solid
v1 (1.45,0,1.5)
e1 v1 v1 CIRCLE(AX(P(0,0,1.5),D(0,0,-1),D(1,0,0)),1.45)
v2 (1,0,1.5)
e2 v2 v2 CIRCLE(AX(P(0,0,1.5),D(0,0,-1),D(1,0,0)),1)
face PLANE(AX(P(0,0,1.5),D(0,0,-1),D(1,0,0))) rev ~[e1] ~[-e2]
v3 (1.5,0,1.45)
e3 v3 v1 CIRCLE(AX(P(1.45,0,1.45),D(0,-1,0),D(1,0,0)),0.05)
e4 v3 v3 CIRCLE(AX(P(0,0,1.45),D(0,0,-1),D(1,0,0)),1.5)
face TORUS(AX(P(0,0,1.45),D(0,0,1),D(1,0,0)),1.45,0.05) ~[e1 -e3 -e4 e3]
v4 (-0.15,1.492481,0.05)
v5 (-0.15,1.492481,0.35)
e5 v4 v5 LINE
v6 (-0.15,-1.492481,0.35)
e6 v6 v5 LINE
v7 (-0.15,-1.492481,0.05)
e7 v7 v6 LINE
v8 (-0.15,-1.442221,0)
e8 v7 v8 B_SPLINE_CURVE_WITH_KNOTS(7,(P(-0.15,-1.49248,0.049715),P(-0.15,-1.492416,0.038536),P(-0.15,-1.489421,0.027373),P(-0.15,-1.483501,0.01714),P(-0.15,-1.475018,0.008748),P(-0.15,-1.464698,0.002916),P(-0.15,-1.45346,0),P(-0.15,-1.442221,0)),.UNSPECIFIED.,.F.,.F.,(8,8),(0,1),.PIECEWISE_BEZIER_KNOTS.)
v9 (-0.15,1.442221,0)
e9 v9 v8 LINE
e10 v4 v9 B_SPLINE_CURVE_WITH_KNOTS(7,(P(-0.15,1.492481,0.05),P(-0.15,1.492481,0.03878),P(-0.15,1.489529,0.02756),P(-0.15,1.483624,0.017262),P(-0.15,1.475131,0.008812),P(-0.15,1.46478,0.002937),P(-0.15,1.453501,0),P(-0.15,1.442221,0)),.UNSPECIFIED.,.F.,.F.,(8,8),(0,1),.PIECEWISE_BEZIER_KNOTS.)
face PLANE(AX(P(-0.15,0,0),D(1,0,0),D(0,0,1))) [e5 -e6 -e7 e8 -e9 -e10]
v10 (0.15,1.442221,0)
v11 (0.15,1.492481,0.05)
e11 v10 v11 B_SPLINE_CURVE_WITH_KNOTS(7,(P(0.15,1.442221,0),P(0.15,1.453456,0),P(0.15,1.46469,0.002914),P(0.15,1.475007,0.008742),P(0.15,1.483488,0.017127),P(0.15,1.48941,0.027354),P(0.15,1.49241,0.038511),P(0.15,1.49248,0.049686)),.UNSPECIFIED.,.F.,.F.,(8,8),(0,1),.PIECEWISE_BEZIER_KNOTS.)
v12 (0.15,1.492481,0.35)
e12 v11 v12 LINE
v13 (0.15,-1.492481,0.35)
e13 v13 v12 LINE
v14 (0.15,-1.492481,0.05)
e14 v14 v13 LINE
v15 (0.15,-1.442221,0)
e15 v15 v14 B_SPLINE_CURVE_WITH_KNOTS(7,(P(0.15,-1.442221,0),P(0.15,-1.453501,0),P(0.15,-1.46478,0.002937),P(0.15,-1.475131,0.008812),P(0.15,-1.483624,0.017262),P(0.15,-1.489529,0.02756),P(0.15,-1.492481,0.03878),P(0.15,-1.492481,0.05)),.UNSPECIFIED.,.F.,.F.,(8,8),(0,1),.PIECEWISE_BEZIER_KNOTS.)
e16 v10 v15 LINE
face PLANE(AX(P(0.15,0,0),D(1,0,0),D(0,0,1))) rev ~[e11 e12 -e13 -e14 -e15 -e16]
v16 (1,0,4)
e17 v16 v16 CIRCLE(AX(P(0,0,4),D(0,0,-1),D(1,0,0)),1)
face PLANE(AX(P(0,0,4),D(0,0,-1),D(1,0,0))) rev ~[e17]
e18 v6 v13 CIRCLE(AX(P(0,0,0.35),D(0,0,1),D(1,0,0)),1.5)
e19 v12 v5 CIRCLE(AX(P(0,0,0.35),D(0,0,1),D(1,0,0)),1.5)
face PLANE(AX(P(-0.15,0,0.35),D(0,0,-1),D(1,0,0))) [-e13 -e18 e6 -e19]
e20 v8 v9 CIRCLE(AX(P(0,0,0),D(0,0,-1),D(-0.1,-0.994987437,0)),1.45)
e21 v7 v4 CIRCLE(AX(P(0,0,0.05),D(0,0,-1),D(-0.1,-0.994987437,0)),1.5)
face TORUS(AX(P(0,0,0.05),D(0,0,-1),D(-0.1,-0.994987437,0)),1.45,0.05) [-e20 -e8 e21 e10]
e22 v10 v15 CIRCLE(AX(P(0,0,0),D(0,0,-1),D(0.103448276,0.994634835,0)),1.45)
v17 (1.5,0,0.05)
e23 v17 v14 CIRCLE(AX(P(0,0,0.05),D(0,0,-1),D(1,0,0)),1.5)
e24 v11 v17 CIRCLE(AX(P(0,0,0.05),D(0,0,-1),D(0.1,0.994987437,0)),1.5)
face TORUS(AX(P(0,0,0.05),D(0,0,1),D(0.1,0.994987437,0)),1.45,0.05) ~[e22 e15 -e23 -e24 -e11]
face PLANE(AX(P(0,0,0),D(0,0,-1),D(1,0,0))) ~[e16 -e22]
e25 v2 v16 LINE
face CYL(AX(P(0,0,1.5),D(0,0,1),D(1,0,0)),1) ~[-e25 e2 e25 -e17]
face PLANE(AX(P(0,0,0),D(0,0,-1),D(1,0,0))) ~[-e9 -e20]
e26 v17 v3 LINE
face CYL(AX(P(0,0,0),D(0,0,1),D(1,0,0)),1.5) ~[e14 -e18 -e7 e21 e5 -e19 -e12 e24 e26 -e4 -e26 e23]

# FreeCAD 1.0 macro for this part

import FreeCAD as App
import Part
import Sketcher

V = App.Vector


def edges_at(feature, points):
    """Names of the edges that pass closest to the given points."""
    edges = feature.Shape.Edges
    near = lambda p: min(range(len(edges)), key=lambda i: edges[i].distToShape(Part.Vertex(*p))[0])
    return sorted({f"Edge{near(p) + 1}" for p in points})

doc = App.newDocument("Part")
body = doc.addObject("PartDesign::Body", "Body")

# Sketch on XZ plane
sketch1 = doc.addObject("Sketcher::SketchObject", "Sketch")
body.addObject(sketch1)
sketch1.AttachmentSupport = (doc.XZ_Plane, [""])
sketch1.MapMode = "FlatFace"
sketch1.addGeometry([
    Part.LineSegment(V(0, 4, 0), V(0, 0, 0)),  # 0
    Part.LineSegment(V(0, 0, 0), V(1.5, 0, 0)),  # 1
    Part.LineSegment(V(1.5, 0, 0), V(1.5, 1.5, 0)),  # 2
    Part.LineSegment(V(1.5, 1.5, 0), V(1, 1.5, 0)),  # 3
    Part.LineSegment(V(1, 1.5, 0), V(1, 4, 0)),  # 4
    Part.LineSegment(V(1, 4, 0), V(0, 4, 0)),  # 5
], False)
sketch1.addConstraint([
    Sketcher.Constraint("Coincident", 0, 2, 1, 1),
    Sketcher.Constraint("Coincident", 1, 2, 2, 1),
    Sketcher.Constraint("Coincident", 2, 2, 3, 1),
    Sketcher.Constraint("Coincident", 3, 2, 4, 1),
    Sketcher.Constraint("Coincident", 4, 2, 5, 1),
    Sketcher.Constraint("Coincident", 5, 2, 0, 1),
    Sketcher.Constraint("Vertical", 0),
    Sketcher.Constraint("Horizontal", 1),
    Sketcher.Constraint("Vertical", 2),
    Sketcher.Constraint("Horizontal", 3),
    Sketcher.Constraint("Vertical", 4),
    Sketcher.Constraint("Horizontal", 5),
    Sketcher.Constraint("Coincident", 0, 2, -1, 1),
    Sketcher.Constraint("Equal", 1, 2),
    Sketcher.Constraint("DistanceX", 5, 2, 5, 1, 1.0),
    Sketcher.Constraint("DistanceY", 0, 2, 0, 1, 4.0),
    Sketcher.Constraint("DistanceX", 1, 1, 1, 2, 1.5),
])
revolution = doc.addObject("PartDesign::Revolution", "Revolution")
body.addObject(revolution)
revolution.Profile = sketch1
revolution.ReferenceAxis = (sketch1, ["V_Axis"])
revolution.Angle = 360

# Sketch on XZ plane
sketch2 = doc.addObject("Sketcher::SketchObject", "Sketch001")
body.addObject(sketch2)
sketch2.AttachmentSupport = (doc.XZ_Plane, [""])
sketch2.MapMode = "FlatFace"
sketch2.addGeometry([
    Part.LineSegment(V(-0.15, 0.35, 0), V(-0.15, 0, 0)),
    Part.LineSegment(V(-0.15, 0, 0), V(0.15, 0, 0)),
    Part.LineSegment(V(0.15, 0, 0), V(0.15, 0.35, 0)),
    Part.LineSegment(V(0.15, 0.35, 0), V(-0.15, 0.35, 0)),
], False)
sketch2.addConstraint([
    Sketcher.Constraint("Coincident", 0, 2, 1, 1),
    Sketcher.Constraint("Coincident", 1, 2, 2, 1),
    Sketcher.Constraint("Coincident", 2, 2, 3, 1),
    Sketcher.Constraint("Coincident", 3, 2, 0, 1),
    Sketcher.Constraint("Vertical", 0),
    Sketcher.Constraint("Horizontal", 1),
    Sketcher.Constraint("Vertical", 2),
    Sketcher.Constraint("Horizontal", 3),
    Sketcher.Constraint("Symmetric", 0, 2, 1, 2, -1, 1),
    Sketcher.Constraint("DistanceX", 1, 1, 1, 2, 0.3),
    Sketcher.Constraint("DistanceY", 0, 2, 0, 1, 0.35),
])
pocket1 = doc.addObject("PartDesign::Pocket", "Pocket")
body.addObject(pocket1)
pocket1.Profile = sketch2
pocket1.Length = 25
pocket1.Midplane = True
doc.recompute()

fillet = doc.addObject("PartDesign::Fillet", "Fillet")
body.addObject(fillet)
fillet.Base = (pocket1, edges_at(pocket1, [
    (-1.5, 0, 1.5),
    (1.112, -1.006, 0),
    (1.112, 1.006, 0),
    (-1.5, 0, 0),
]))
fillet.Radius = 0.05

doc.recompute()
